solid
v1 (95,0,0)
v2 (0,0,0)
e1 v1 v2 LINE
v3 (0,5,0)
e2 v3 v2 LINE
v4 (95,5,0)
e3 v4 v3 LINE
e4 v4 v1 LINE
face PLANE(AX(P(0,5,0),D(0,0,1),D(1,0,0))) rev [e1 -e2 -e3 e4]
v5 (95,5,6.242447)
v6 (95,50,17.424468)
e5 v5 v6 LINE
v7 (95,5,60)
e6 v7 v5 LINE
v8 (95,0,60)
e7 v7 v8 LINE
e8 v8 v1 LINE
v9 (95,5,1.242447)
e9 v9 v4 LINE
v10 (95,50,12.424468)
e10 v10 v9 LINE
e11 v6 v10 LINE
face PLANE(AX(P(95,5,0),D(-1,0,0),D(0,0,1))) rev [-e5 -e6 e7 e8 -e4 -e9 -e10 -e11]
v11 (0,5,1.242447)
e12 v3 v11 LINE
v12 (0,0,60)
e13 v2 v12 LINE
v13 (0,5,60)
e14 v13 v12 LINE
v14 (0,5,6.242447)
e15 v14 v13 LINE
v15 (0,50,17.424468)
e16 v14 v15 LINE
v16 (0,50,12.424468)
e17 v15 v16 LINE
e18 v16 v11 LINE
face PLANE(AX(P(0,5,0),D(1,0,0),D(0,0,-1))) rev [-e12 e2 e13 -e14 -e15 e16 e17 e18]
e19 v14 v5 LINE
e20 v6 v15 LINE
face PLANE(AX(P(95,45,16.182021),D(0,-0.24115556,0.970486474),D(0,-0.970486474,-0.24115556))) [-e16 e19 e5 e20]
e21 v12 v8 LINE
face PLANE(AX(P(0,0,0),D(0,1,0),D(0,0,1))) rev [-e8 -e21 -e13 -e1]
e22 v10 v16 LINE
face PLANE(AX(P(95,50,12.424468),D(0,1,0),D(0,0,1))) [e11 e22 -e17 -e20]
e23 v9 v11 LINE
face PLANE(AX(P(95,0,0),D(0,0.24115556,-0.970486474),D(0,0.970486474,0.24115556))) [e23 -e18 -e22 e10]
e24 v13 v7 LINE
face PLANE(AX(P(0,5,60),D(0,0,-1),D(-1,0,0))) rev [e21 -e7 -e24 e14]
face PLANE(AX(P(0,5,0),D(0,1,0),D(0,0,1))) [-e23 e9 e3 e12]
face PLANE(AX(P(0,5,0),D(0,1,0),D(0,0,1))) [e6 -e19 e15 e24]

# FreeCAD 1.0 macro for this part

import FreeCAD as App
import Part
import Sketcher
Q = App.Units.Quantity


def add_polygon(sketch, points):
    """Adds a closed chain of lines whose ends are joined by coincident constraints."""
    first, n = sketch.GeometryCount, len(points)
    for a, b in zip(points, points[1:] + points[:1]):
        sketch.addGeometry(Part.LineSegment(App.Vector(*a, 0), App.Vector(*b, 0)), False)
    for i in range(n):
        sketch.addConstraint(Sketcher.Constraint("Coincident", first + i, 2, first + (i + 1) % n, 1))

doc = App.newDocument("Part")
params = doc.addObject("Spreadsheet::Sheet", "Params")
for row, (alias, value) in enumerate([
    ("sketch1_width", "95 mm"),
    ("sketch1_height", "60 mm"),
    ("pad1_length", "5 mm"),
    ("sketch2_height", "5 mm"),
    ("pad2_length", "95 mm"),
], start=1):
    params.set(f"A{row}", alias)
    params.set(f"B{row}", "=" + value)
    params.setAlias(f"B{row}", alias)

body = doc.addObject("PartDesign::Body", "Body")

# Sketch on XZ plane
sketch1 = body.newObject("Sketcher::SketchObject", "Sketch")
sketch1.AttachmentSupport = (doc.getObject("XZ_Plane"), [""])
sketch1.MapMode = "FlatFace"
add_polygon(sketch1, [(0, 0), (0, 60), (95, 60), (95, 0)])  # lines 0-3
sketch1.addConstraint([
    Sketcher.Constraint("Vertical", 0),
    Sketcher.Constraint("Horizontal", 1),
    Sketcher.Constraint("Vertical", 2),
    Sketcher.Constraint("Horizontal", 3),
    Sketcher.Constraint("Coincident", 3, 2, -1, 1),
    Sketcher.Constraint("DistanceX", 1, 1, 1, 2, Q("95 mm")),
    Sketcher.Constraint("DistanceY", 0, 1, 0, 2, Q("60 mm")),
])
sketch1.setExpression("Constraints[9]", "Params.sketch1_width")
sketch1.setExpression("Constraints[10]", "Params.sketch1_height")
pad1 = body.newObject("PartDesign::Pad", "Pad")
pad1.Profile = sketch1
pad1.setExpression("Length", "Params.pad1_length")
pad1.Reversed = True

# Sketch on YZ plane
sketch2 = body.newObject("Sketcher::SketchObject", "Sketch001")
sketch2.AttachmentSupport = (doc.getObject("YZ_Plane"), [""])
sketch2.MapMode = "FlatFace"
add_polygon(sketch2, [(50, 12.4), (0, 0), (0, 5), (45, 16.2), (50, 17.4)])  # lines 0-4
sketch2.addConstraint([
    Sketcher.Constraint("Vertical", 1),
    Sketcher.Constraint("Vertical", 4),
    Sketcher.Constraint("Coincident", 0, 2, -1, 1),
    Sketcher.Constraint("Parallel", 0, 2),
    Sketcher.Constraint("Parallel", 2, 3),
    Sketcher.Constraint("DistanceY", 1, 1, 1, 2, Q("5 mm")),
    Sketcher.Constraint("DistanceX", -1, 1, 2, 2, Q("45 mm")),
    Sketcher.Constraint("DistanceX", -1, 1, 3, 2, Q("50 mm")),
    Sketcher.Constraint("DistanceY", -1, 1, 2, 2, Q("16.182021 mm")),
])
sketch2.setExpression("Constraints[10]", "Params.sketch2_height")
pad2 = body.newObject("PartDesign::Pad", "Pad001")
pad2.Profile = sketch2
pad2.setExpression("Length", "Params.pad2_length")

doc.recompute()
